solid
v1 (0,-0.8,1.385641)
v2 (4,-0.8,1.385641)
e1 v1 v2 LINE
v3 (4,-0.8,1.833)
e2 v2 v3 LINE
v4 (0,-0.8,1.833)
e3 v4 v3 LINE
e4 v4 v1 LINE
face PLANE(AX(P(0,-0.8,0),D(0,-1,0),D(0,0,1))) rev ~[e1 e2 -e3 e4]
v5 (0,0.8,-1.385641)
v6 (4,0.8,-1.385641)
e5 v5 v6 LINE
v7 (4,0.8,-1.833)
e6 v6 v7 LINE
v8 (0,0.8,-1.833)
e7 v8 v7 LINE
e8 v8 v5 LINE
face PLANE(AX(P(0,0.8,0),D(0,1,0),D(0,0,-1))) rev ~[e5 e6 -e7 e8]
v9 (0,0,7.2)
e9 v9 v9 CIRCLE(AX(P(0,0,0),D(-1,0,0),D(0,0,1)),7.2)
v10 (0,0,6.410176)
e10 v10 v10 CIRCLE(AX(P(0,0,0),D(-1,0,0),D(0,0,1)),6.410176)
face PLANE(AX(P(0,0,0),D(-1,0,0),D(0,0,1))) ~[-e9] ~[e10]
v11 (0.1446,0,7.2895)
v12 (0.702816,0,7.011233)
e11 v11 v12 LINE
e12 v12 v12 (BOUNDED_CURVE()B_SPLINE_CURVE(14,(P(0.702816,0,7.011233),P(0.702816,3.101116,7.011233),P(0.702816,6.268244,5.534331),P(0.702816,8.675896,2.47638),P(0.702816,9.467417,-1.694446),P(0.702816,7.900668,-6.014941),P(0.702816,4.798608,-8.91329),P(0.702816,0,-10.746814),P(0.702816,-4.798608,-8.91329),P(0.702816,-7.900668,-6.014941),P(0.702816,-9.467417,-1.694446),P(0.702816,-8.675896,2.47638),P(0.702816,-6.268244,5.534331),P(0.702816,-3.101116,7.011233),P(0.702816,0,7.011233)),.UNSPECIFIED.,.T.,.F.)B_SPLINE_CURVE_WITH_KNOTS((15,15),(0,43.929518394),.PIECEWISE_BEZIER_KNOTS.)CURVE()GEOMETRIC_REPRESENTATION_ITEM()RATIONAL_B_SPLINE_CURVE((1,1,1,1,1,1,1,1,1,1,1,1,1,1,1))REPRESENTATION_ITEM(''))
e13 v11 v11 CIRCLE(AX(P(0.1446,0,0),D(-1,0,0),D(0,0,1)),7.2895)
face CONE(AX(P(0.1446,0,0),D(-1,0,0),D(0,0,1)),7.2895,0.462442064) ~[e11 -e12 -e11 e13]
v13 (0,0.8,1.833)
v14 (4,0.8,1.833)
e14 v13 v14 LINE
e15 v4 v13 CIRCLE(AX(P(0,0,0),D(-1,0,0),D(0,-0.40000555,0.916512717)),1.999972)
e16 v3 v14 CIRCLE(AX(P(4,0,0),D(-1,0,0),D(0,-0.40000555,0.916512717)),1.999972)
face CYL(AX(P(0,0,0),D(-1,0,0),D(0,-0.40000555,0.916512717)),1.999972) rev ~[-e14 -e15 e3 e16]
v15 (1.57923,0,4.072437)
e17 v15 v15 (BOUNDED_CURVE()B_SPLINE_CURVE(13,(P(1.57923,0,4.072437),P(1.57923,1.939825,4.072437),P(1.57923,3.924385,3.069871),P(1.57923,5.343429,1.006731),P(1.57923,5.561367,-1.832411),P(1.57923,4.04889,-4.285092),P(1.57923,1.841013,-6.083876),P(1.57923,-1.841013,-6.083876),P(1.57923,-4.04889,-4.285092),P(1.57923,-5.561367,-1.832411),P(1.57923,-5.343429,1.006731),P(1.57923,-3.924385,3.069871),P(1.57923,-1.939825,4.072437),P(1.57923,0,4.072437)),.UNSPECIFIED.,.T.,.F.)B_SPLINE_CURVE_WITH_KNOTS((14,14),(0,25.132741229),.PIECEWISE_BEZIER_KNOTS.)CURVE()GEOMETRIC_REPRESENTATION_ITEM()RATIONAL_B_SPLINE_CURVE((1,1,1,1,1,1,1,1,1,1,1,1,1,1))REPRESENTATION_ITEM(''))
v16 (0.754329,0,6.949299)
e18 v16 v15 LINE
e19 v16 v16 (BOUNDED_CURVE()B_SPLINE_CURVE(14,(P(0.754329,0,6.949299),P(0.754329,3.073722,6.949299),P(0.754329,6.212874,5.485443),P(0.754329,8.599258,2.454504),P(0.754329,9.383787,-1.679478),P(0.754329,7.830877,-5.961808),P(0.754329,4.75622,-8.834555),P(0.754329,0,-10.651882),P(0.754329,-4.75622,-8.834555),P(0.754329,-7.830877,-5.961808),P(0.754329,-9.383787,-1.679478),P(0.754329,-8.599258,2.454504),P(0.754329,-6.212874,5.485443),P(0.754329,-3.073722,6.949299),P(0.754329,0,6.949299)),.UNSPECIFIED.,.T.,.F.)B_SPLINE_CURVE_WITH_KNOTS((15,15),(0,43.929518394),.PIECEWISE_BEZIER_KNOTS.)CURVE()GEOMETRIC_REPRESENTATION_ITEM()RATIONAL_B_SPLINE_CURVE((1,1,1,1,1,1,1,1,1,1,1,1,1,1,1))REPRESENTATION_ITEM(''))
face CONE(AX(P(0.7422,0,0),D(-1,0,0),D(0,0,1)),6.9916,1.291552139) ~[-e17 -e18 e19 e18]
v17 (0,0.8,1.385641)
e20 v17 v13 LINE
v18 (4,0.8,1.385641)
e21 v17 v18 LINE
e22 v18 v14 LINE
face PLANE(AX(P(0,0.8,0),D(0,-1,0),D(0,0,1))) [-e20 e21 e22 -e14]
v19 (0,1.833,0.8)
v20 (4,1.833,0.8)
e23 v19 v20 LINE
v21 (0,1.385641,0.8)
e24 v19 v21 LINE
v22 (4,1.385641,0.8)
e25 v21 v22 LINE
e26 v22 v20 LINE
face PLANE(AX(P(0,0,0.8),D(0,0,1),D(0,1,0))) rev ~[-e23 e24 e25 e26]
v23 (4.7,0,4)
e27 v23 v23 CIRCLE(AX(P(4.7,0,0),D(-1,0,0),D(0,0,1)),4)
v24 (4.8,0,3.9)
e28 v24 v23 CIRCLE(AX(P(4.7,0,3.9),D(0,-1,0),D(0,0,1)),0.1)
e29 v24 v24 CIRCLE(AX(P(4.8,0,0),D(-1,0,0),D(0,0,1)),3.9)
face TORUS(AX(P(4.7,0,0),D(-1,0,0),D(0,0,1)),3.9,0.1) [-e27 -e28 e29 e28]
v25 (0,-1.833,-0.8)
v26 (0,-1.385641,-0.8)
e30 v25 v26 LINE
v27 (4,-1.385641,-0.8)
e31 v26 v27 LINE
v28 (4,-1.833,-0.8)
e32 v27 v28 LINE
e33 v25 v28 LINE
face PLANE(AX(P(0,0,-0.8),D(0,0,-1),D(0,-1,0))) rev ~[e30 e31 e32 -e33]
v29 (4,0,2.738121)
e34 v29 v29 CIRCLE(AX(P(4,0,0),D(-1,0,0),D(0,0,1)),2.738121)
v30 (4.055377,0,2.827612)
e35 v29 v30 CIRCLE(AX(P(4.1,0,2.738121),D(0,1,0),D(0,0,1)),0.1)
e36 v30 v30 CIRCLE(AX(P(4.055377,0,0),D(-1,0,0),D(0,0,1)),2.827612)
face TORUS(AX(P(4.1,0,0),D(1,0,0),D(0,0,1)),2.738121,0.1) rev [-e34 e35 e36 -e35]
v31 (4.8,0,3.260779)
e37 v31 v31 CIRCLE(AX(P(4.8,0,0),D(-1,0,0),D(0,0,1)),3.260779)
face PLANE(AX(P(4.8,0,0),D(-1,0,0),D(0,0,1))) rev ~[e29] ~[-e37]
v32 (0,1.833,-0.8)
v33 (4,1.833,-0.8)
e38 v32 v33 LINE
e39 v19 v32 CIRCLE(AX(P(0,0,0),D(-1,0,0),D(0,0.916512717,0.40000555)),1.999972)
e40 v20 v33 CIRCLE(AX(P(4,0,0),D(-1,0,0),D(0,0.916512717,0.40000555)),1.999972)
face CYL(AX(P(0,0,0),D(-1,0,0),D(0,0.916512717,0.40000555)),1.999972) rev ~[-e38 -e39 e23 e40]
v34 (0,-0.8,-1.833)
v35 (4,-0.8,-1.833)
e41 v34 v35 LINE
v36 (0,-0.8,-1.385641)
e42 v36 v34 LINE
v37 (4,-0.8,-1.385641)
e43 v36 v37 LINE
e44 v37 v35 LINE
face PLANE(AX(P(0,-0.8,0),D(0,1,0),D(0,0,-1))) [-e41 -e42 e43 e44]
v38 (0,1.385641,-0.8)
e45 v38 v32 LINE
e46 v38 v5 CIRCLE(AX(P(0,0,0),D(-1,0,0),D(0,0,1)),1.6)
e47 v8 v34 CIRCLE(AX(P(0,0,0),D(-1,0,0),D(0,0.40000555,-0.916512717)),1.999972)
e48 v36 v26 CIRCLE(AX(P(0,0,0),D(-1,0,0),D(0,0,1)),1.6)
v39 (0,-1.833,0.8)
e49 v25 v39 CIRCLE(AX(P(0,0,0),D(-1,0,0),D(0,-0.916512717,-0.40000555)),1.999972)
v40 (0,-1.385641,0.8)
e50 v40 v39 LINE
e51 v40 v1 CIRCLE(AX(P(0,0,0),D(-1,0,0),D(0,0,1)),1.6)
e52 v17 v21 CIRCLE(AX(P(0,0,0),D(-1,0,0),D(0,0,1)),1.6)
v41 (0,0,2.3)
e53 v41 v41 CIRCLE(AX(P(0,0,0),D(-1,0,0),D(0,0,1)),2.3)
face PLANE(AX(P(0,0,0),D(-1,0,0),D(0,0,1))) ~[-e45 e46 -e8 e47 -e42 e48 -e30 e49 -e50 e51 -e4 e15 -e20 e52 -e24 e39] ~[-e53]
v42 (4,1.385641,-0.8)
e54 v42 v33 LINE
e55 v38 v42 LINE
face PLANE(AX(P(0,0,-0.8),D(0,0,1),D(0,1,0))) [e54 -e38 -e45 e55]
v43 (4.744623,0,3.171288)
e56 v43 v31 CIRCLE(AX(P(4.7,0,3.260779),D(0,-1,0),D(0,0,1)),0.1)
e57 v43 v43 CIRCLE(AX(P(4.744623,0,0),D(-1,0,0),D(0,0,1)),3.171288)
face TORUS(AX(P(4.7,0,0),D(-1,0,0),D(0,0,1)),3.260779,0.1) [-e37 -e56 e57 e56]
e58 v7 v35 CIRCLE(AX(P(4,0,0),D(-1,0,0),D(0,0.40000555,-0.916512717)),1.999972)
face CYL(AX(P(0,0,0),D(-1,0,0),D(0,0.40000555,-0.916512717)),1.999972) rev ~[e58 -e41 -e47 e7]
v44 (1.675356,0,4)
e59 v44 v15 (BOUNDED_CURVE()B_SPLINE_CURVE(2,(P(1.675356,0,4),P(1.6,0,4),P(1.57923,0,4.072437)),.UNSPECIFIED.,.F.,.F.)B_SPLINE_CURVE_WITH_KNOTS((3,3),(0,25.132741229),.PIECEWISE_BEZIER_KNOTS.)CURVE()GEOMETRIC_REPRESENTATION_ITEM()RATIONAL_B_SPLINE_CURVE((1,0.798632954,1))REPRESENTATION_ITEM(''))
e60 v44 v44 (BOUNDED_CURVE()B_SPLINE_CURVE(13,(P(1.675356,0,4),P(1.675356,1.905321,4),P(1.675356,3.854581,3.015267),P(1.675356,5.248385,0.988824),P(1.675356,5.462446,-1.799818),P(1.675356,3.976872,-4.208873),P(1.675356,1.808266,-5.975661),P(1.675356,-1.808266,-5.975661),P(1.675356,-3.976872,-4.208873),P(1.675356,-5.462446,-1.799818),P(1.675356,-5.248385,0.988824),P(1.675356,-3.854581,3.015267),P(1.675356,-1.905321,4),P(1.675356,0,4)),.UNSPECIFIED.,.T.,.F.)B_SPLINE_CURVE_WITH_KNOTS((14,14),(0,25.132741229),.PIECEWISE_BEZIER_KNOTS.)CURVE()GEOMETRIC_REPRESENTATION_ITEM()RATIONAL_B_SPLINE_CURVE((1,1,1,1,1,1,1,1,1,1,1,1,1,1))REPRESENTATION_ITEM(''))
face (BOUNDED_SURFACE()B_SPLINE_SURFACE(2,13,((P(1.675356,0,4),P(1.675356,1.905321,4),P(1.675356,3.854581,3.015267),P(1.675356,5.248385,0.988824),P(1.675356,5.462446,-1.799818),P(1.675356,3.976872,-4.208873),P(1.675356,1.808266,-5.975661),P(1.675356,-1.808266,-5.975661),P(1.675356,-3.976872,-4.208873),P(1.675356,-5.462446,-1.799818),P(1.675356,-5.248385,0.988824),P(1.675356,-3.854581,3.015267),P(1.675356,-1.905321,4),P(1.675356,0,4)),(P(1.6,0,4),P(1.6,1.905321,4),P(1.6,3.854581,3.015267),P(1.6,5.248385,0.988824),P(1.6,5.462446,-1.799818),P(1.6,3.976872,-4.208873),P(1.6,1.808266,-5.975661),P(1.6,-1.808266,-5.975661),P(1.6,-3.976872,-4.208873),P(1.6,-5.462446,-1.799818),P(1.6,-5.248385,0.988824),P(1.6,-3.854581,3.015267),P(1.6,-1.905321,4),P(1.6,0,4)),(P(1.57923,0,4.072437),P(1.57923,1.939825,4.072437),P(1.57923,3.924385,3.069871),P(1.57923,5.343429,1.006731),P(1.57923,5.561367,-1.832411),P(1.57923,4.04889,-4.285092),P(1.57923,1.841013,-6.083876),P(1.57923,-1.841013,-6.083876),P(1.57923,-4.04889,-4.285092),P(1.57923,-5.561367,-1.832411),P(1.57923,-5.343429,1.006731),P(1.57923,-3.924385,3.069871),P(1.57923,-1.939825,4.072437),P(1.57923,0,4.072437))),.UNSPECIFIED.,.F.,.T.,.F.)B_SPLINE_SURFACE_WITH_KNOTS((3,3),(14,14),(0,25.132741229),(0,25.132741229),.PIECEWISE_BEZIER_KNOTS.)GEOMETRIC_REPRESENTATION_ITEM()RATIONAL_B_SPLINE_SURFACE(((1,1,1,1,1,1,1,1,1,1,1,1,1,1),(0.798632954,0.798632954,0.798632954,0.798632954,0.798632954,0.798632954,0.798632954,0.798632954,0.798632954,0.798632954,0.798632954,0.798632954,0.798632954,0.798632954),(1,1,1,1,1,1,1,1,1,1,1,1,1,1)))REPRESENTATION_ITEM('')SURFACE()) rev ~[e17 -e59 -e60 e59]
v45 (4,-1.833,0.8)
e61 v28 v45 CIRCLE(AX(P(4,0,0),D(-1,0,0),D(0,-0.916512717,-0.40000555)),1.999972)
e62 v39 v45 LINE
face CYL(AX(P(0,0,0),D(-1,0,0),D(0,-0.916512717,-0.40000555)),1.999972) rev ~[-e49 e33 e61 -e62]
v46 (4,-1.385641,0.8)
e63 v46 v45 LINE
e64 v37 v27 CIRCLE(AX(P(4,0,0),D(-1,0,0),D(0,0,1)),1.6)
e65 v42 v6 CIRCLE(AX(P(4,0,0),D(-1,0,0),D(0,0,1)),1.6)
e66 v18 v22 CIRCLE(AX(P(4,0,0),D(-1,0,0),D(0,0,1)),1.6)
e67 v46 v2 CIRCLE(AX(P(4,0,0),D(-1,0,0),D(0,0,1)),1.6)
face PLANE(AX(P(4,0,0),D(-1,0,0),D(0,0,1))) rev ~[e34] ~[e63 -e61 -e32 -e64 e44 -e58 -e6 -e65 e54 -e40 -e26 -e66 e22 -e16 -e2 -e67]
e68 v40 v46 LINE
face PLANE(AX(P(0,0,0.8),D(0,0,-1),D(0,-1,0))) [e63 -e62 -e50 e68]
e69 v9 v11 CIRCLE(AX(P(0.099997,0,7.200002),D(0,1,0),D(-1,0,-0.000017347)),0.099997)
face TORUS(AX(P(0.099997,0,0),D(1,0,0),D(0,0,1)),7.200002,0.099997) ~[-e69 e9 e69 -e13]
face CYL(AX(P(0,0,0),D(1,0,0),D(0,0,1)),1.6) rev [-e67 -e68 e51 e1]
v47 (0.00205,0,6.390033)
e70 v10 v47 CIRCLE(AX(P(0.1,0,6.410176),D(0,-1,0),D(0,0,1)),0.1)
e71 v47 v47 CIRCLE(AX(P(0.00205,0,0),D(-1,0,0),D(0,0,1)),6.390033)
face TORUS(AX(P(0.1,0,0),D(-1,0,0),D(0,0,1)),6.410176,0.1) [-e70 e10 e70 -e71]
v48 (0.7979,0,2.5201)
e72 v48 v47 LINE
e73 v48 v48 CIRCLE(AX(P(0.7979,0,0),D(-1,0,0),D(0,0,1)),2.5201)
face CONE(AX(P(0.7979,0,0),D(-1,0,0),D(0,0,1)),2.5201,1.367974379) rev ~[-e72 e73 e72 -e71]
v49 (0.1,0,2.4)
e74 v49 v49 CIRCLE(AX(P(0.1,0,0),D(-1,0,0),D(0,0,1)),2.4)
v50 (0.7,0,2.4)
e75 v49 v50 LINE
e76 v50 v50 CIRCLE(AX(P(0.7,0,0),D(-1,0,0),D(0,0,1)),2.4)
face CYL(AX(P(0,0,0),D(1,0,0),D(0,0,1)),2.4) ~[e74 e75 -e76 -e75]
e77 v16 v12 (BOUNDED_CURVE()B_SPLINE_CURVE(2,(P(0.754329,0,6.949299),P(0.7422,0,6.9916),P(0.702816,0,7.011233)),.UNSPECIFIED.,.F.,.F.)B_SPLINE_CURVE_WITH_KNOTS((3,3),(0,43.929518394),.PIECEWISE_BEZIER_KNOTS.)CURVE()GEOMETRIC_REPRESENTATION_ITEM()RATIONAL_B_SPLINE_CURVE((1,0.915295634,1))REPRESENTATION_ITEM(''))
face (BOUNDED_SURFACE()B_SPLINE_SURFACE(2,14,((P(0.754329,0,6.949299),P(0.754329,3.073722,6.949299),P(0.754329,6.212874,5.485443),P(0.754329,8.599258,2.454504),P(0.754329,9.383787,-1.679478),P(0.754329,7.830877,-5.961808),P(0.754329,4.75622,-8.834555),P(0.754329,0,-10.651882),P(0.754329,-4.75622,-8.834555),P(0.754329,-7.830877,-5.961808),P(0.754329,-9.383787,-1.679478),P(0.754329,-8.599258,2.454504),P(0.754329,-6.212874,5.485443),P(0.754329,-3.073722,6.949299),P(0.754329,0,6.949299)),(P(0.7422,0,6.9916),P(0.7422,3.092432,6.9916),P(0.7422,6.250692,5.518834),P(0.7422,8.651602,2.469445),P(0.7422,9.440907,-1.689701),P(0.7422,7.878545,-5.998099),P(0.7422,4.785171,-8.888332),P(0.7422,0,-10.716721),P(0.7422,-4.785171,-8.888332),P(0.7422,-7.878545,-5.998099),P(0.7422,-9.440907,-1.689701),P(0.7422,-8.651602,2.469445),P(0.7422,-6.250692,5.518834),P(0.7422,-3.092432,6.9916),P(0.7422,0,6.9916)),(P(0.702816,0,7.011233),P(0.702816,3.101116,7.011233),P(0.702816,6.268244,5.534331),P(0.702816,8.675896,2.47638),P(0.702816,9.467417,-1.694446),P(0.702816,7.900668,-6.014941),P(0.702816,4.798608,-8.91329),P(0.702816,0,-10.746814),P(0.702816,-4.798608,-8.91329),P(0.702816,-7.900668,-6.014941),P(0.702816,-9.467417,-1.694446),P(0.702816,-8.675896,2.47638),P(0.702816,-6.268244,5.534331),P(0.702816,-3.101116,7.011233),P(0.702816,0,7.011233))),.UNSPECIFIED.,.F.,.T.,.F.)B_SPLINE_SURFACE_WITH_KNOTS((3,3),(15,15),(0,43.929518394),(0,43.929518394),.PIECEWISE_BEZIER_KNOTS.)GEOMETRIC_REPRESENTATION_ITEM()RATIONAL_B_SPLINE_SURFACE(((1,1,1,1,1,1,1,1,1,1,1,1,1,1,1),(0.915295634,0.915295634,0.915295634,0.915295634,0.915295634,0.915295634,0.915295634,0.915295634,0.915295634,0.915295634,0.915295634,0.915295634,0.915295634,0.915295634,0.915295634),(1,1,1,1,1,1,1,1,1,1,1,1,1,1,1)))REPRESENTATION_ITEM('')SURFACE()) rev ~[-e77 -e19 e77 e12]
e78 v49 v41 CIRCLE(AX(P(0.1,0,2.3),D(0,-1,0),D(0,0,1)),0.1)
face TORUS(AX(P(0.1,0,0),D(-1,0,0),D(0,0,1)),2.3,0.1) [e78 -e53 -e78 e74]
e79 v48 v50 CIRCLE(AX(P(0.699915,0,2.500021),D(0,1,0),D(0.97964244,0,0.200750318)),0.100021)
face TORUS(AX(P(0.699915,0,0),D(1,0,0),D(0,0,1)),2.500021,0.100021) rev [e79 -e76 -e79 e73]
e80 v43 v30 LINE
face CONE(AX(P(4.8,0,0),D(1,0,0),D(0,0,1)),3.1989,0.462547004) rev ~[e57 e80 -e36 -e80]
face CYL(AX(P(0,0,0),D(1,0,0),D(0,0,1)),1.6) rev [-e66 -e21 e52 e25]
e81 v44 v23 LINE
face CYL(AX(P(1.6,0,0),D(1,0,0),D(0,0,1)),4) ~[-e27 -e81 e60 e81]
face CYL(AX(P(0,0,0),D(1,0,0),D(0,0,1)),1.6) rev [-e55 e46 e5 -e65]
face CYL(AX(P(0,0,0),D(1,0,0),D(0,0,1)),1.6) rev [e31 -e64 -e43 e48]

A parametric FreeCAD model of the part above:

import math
import FreeCAD as App
import Part
import Sketcher
Q = App.Units.Quantity


def edges_at(feature, points):
    """Names of the edges that pass closest to the given points."""
    edges = feature.Shape.Edges
    near = lambda p: min(range(len(edges)), key=lambda i: edges[i].distToShape(Part.Vertex(*p))[0])
    return sorted({f"Edge{near(p) + 1}" for p in points})

doc = App.newDocument("Part")
body = doc.addObject("PartDesign::Body", "Body")

sketch1 = body.newObject("Sketcher::SketchObject", "Sketch")
sketch1.AttachmentSupport = (doc.getObject("XZ_Plane"), [""])
sketch1.MapMode = "FlatFace"
sketch1.addGeometry([
    Part.LineSegment(App.Vector(4, 1.6, 0), App.Vector(0, 1.6, 0)),
    Part.LineSegment(App.Vector(0, 1.6, 0), App.Vector(0, 2.4, 0)),
    Part.LineSegment(App.Vector(0, 2.4, 0), App.Vector(0.7, 2.4, 0)),
    Part.ArcOfCircle(Part.Circle(App.Vector(0.7, 2.5, 0), App.Vector(0, 0, 1), 0.1), math.radians(-90), math.radians(12)),
    Part.LineSegment(App.Vector(0.8, 2.52, 0), App.Vector(0, 6.4, 0)),
    Part.LineSegment(App.Vector(0, 6.4, 0), App.Vector(0, 7.2, 0)),
    Part.ArcOfCircle(Part.Circle(App.Vector(0.1, 7.2, 0), App.Vector(0, 0, 1), 0.1), math.radians(64), math.radians(180)),
    Part.LineSegment(App.Vector(0.14, 7.29, 0), App.Vector(0.74, 6.99, 0)),
    Part.LineSegment(App.Vector(0.74, 6.99, 0), App.Vector(1.6, 4, 0)),
    Part.LineSegment(App.Vector(1.6, 4, 0), App.Vector(4.8, 4, 0)),
    Part.LineSegment(App.Vector(4.8, 4, 0), App.Vector(4.8, 3.2, 0)),
    Part.LineSegment(App.Vector(4.8, 3.2, 0), App.Vector(4, 2.8, 0)),
    Part.LineSegment(App.Vector(4, 2.8, 0), App.Vector(4, 1.6, 0)),
], False)
sketch1.addConstraint([
    Sketcher.Constraint("Coincident", 0, 2, 1, 1),
    Sketcher.Constraint("Coincident", 1, 2, 2, 1),
    Sketcher.Constraint("Tangent", 2, 2, 3, 1),
    Sketcher.Constraint("Tangent", 3, 2, 4, 1),
    Sketcher.Constraint("Coincident", 4, 2, 5, 1),
    Sketcher.Constraint("Tangent", 5, 2, 6, 2),
    Sketcher.Constraint("Tangent", 6, 1, 7, 1),
    Sketcher.Constraint("Coincident", 7, 2, 8, 1),
    Sketcher.Constraint("Coincident", 8, 2, 9, 1),
    Sketcher.Constraint("Coincident", 9, 2, 10, 1),
    Sketcher.Constraint("Coincident", 10, 2, 11, 1),
    Sketcher.Constraint("Coincident", 11, 2, 12, 1),
    Sketcher.Constraint("Coincident", 12, 2, 0, 1),
    Sketcher.Constraint("Horizontal", 0),
    Sketcher.Constraint("Vertical", 1),
    Sketcher.Constraint("Horizontal", 2),
    Sketcher.Constraint("Vertical", 5),
    Sketcher.Constraint("Horizontal", 9),
    Sketcher.Constraint("Vertical", 10),
    Sketcher.Constraint("Vertical", 12),
    Sketcher.Constraint("Equal", 3, 6),
    Sketcher.Constraint("PointOnObject", 0, 2, -2),
    Sketcher.Constraint("PointOnObject", 4, 2, -2),
    Sketcher.Constraint("Equal", 1, 5),
    Sketcher.Constraint("Radius", 3, 0.1),
    Sketcher.Constraint("DistanceX", 9, 1, 9, 2, 3.2),
    Sketcher.Constraint("DistanceY", 1, 1, 1, 2, 0.8),
    Sketcher.Constraint("DistanceX", -1, 1, 9, 2, 4.8),
    Sketcher.Constraint("DistanceY", 0, 2, 6, 3, 5.6),
    Sketcher.Constraint("DistanceX", 11, 2, 10, 2, 0.8),
    Sketcher.Constraint("Angle", 8, Q("-74.0005 deg")),
    Sketcher.Constraint("DistanceX", 2, 1, 2, 2, 0.7),
    Sketcher.Constraint("DistanceY", 12, 2, 12, 1, 1.2),
    Sketcher.Constraint("DistanceY", -1, 1, 8, 2, 4.0),
    Sketcher.Constraint("DistanceY", -1, 1, 3, 3, 2.5),
    Sketcher.Constraint("DistanceY", 10, 2, 10, 1, 0.801),
    Sketcher.Constraint("DistanceY", 7, 2, 6, 1, 0.298),
])
revolution = body.newObject("PartDesign::Revolution", "Revolution")
revolution.Profile = sketch1
revolution.ReferenceAxis = (sketch1, ["H_Axis"])
revolution.Angle = 360
doc.recompute()

fillet = body.newObject("PartDesign::Fillet", "Fillet")
fillet.Base = (revolution, edges_at(revolution, [
    (4.8, 0, -4),
    (1.6, 0, -4),
    (0.742, 0, -6.992),
    (4.8, 0, -3.199),
    (4, 0, -2.8),
    (0, 0, -2.4),
    (0, 0, -6.4),
]))
fillet.Radius = 0.1

sketch2 = body.newObject("Sketcher::SketchObject", "Sketch001")
sketch2.AttachmentSupport = (doc.getObject("YZ_Plane"), [""])
sketch2.MapMode = "FlatFace"
sketch2.addGeometry([
    Part.LineSegment(App.Vector(0.8, 0, 0), App.Vector(-0.8, 0, 0)),
    Part.LineSegment(App.Vector(-0.8, 0, 0), App.Vector(-0.8, 1.8, 0)),
    Part.ArcOfCircle(Part.Circle(App.Vector(0, 0, 0), App.Vector(0, 0, 1), 2), math.radians(66), math.radians(114)),
    Part.LineSegment(App.Vector(0.8, 1.8, 0), App.Vector(0.8, 0, 0)),
], False)
sketch2.addConstraint([
    Sketcher.Constraint("Coincident", 0, 2, 1, 1),
    Sketcher.Constraint("Coincident", 1, 2, 2, 2),
    Sketcher.Constraint("Coincident", 2, 1, 3, 1),
    Sketcher.Constraint("Coincident", 3, 2, 0, 1),
    Sketcher.Constraint("Horizontal", 0),
    Sketcher.Constraint("Vertical", 1),
    Sketcher.Constraint("Vertical", 3),
    Sketcher.Constraint("Coincident", 2, 3, -1, 1),
    Sketcher.Constraint("Symmetric", 0, 2, 3, 2, -1, 1),
    Sketcher.Constraint("Radius", 2, 2.0),
    Sketcher.Constraint("DistanceX", 0, 2, 0, 1, 1.6),
])
pocket1 = body.newObject("PartDesign::Pocket", "Pocket")
pocket1.Profile = sketch2
pocket1.Length = 10
pocket1.Reversed = True
doc.recompute()

polarpattern = body.newObject("PartDesign::PolarPattern", "PolarPattern")
polarpattern.Originals = [pocket1]
polarpattern.Axis = (doc.getObject("X_Axis"), [""])
polarpattern.Angle = 360
polarpattern.Occurrences = 4
body.Tip = polarpattern

doc.recompute()
